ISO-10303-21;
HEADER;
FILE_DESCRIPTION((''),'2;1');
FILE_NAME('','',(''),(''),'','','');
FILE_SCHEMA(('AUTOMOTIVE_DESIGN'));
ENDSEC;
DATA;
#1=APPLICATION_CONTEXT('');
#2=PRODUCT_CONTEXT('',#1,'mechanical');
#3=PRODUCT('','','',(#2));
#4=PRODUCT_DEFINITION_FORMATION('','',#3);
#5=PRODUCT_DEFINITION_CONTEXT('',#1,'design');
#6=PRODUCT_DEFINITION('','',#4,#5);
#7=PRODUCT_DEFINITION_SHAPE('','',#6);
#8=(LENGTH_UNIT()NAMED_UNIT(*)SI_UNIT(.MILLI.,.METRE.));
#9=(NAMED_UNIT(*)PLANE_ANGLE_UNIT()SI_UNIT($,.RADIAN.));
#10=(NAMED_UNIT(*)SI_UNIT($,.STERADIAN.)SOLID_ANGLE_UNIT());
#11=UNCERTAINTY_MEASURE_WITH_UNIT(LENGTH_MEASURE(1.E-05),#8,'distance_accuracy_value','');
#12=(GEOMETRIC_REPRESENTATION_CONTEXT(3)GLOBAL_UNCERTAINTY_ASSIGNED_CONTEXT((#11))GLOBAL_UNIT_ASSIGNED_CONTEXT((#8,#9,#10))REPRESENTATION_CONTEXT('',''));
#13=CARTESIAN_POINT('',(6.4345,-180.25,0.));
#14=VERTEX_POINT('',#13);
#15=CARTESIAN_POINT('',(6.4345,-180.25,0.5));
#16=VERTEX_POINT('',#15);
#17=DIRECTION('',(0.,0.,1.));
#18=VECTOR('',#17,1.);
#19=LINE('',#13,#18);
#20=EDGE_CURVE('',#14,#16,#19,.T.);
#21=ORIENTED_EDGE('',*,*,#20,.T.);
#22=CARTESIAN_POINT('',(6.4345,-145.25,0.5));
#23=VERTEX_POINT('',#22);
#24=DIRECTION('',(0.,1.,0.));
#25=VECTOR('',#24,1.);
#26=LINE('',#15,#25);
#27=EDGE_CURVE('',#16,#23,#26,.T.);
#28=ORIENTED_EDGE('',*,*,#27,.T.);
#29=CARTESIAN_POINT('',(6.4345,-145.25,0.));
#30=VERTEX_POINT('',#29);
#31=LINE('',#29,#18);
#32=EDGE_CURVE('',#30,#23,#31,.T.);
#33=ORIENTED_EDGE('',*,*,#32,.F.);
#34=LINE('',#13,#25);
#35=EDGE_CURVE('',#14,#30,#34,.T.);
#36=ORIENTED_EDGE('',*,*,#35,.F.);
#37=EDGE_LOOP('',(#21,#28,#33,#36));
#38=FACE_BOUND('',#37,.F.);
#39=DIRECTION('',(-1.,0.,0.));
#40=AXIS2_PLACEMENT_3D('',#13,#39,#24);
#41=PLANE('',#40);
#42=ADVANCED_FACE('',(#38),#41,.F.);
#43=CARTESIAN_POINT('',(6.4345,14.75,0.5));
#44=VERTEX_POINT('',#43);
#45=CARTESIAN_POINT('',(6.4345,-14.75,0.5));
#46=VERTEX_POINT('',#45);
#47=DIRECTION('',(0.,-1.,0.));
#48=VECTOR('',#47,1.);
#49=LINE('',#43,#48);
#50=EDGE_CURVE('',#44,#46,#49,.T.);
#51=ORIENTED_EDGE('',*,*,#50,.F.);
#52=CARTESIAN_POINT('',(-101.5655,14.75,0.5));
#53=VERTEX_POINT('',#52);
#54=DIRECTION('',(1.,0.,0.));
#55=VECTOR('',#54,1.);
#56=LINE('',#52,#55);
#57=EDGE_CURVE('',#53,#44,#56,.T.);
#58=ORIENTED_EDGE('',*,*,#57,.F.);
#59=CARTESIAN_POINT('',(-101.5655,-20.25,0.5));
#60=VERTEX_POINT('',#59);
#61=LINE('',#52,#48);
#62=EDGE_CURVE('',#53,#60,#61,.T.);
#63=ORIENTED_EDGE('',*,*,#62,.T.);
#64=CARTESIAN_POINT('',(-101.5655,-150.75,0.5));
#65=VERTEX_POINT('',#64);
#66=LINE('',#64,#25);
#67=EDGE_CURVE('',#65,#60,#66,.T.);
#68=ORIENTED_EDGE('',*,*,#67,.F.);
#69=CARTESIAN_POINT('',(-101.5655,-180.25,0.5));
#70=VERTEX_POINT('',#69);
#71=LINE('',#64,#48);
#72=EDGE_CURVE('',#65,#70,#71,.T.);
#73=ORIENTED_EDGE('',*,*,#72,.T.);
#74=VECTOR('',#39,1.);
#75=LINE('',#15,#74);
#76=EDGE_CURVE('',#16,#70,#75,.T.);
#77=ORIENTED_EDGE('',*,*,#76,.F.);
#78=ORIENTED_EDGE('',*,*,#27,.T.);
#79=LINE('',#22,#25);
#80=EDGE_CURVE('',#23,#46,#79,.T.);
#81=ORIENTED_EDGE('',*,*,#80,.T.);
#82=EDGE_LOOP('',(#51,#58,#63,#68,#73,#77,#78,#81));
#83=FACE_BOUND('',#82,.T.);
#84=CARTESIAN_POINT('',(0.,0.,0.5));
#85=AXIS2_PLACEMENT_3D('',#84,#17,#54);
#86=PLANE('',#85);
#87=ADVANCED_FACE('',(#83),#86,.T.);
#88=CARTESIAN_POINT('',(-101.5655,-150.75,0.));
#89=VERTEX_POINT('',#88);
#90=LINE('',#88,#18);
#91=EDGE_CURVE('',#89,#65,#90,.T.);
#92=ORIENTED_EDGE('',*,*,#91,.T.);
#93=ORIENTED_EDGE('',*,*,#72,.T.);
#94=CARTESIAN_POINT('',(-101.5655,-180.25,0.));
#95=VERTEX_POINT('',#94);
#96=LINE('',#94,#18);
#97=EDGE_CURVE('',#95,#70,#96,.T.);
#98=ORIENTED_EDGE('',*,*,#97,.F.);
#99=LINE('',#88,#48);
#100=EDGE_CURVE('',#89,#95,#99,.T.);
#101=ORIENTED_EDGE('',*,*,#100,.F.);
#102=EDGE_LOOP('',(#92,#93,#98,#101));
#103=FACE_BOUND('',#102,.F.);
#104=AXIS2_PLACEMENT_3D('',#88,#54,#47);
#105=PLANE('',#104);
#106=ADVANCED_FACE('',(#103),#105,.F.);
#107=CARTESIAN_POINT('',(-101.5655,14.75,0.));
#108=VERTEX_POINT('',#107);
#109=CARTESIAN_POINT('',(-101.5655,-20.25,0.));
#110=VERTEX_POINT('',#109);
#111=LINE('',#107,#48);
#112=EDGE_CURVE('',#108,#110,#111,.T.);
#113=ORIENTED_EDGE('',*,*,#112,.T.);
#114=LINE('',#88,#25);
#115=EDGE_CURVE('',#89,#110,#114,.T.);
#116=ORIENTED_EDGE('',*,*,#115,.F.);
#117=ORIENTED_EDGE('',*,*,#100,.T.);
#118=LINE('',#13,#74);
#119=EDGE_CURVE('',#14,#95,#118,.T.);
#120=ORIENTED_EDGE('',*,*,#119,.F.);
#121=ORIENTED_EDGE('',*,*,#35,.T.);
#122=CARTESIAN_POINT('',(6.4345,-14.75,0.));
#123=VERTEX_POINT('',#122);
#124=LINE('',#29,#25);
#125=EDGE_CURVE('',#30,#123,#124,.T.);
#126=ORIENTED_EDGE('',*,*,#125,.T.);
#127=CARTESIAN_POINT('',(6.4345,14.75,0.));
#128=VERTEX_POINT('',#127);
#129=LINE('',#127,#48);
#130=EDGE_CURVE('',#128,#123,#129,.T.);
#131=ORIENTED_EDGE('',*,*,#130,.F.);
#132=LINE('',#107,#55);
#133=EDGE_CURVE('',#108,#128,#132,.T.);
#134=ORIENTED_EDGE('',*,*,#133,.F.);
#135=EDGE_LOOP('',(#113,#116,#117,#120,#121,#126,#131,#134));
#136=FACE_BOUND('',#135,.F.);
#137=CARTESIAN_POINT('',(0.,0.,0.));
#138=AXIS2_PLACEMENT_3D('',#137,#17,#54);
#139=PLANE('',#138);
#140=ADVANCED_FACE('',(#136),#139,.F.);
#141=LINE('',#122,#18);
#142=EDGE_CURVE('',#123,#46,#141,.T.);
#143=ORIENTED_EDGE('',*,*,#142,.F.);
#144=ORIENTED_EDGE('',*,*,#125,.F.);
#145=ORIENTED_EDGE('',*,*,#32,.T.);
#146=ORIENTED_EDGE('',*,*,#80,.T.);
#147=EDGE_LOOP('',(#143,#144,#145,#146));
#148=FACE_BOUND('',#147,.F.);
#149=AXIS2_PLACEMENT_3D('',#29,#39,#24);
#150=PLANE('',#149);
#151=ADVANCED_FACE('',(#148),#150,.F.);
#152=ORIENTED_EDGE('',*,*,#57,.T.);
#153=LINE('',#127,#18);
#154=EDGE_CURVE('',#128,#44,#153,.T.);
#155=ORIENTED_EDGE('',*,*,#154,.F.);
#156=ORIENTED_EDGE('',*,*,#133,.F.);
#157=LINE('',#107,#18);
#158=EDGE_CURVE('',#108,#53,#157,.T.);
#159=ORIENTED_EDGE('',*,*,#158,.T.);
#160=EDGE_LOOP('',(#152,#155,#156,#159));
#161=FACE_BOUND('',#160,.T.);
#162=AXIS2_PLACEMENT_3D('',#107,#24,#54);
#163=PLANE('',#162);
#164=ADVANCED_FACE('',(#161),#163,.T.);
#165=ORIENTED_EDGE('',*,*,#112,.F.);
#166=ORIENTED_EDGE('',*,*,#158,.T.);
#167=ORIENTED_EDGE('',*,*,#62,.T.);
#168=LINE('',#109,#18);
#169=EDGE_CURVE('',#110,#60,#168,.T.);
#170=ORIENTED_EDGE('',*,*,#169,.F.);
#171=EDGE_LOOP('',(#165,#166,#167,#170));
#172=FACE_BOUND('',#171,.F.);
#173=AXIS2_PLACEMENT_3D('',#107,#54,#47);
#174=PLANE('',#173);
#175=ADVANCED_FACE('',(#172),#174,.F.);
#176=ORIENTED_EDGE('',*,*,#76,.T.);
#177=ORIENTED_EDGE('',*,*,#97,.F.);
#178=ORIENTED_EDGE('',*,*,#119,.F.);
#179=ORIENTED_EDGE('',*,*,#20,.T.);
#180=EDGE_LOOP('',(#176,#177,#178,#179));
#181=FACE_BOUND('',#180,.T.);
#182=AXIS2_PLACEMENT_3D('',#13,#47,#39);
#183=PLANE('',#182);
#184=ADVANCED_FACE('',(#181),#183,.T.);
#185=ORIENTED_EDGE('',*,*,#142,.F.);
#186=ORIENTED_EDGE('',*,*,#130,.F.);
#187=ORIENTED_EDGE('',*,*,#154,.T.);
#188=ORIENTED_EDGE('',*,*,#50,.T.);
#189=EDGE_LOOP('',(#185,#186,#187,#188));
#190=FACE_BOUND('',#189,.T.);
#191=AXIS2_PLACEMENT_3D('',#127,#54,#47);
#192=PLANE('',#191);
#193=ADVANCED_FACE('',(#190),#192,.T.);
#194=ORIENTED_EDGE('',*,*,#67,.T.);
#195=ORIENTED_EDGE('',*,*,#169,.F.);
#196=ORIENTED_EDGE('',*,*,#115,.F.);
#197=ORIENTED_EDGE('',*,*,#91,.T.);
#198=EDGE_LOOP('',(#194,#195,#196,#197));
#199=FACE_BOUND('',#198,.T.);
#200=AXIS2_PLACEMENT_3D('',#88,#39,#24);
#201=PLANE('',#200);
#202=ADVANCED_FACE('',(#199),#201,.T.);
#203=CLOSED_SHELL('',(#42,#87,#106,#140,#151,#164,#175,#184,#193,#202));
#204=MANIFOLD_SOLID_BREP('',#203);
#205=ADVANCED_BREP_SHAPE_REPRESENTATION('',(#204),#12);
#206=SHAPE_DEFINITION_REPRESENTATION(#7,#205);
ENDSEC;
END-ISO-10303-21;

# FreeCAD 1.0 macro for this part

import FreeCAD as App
import Part
import Sketcher

V = App.Vector
Q = App.Units.Quantity


def add_polygon(sketch, points):
    """Adds a closed chain of lines whose ends are joined by coincident constraints."""
    first, n = sketch.GeometryCount, len(points)
    for a, b in zip(points, points[1:] + points[:1]):
        sketch.addGeometry(Part.LineSegment(App.Vector(*a, 0), App.Vector(*b, 0)), False)
    for i in range(n):
        sketch.addConstraint(Sketcher.Constraint("Coincident", first + i, 2, first + (i + 1) % n, 1))

doc = App.newDocument("Part")
body = doc.addObject("PartDesign::Body", "Body")

# Sketch on XY plane
sketch1 = body.newObject("Sketcher::SketchObject", "Sketch")
sketch1.AttachmentSupport = (doc.getObject("XY_Plane"), [""])
sketch1.MapMode = "FlatFace"
add_polygon(sketch1, [(-102, -180), (6, -180), (6, 15), (-102, 15)])  # lines 0-3
sketch1.addConstraint([
    Sketcher.Constraint("Horizontal", 0),
    Sketcher.Constraint("Vertical", 1),
    Sketcher.Constraint("Horizontal", 2),
    Sketcher.Constraint("Vertical", 3),
    Sketcher.Constraint("DistanceX", 0, 1, 0, 2, Q("108 mm")),
    Sketcher.Constraint("DistanceY", 1, 1, 1, 2, Q("195 mm")),
    Sketcher.Constraint("DistanceY", 0, 2, -1, 1, Q("180.25 mm")),
    Sketcher.Constraint("DistanceX", -1, 1, 0, 2, Q("6.4345 mm")),
])
pad1 = body.newObject("PartDesign::Pad", "Pad")
pad1.Profile = sketch1
pad1.Length = 0.5

doc.recompute()
